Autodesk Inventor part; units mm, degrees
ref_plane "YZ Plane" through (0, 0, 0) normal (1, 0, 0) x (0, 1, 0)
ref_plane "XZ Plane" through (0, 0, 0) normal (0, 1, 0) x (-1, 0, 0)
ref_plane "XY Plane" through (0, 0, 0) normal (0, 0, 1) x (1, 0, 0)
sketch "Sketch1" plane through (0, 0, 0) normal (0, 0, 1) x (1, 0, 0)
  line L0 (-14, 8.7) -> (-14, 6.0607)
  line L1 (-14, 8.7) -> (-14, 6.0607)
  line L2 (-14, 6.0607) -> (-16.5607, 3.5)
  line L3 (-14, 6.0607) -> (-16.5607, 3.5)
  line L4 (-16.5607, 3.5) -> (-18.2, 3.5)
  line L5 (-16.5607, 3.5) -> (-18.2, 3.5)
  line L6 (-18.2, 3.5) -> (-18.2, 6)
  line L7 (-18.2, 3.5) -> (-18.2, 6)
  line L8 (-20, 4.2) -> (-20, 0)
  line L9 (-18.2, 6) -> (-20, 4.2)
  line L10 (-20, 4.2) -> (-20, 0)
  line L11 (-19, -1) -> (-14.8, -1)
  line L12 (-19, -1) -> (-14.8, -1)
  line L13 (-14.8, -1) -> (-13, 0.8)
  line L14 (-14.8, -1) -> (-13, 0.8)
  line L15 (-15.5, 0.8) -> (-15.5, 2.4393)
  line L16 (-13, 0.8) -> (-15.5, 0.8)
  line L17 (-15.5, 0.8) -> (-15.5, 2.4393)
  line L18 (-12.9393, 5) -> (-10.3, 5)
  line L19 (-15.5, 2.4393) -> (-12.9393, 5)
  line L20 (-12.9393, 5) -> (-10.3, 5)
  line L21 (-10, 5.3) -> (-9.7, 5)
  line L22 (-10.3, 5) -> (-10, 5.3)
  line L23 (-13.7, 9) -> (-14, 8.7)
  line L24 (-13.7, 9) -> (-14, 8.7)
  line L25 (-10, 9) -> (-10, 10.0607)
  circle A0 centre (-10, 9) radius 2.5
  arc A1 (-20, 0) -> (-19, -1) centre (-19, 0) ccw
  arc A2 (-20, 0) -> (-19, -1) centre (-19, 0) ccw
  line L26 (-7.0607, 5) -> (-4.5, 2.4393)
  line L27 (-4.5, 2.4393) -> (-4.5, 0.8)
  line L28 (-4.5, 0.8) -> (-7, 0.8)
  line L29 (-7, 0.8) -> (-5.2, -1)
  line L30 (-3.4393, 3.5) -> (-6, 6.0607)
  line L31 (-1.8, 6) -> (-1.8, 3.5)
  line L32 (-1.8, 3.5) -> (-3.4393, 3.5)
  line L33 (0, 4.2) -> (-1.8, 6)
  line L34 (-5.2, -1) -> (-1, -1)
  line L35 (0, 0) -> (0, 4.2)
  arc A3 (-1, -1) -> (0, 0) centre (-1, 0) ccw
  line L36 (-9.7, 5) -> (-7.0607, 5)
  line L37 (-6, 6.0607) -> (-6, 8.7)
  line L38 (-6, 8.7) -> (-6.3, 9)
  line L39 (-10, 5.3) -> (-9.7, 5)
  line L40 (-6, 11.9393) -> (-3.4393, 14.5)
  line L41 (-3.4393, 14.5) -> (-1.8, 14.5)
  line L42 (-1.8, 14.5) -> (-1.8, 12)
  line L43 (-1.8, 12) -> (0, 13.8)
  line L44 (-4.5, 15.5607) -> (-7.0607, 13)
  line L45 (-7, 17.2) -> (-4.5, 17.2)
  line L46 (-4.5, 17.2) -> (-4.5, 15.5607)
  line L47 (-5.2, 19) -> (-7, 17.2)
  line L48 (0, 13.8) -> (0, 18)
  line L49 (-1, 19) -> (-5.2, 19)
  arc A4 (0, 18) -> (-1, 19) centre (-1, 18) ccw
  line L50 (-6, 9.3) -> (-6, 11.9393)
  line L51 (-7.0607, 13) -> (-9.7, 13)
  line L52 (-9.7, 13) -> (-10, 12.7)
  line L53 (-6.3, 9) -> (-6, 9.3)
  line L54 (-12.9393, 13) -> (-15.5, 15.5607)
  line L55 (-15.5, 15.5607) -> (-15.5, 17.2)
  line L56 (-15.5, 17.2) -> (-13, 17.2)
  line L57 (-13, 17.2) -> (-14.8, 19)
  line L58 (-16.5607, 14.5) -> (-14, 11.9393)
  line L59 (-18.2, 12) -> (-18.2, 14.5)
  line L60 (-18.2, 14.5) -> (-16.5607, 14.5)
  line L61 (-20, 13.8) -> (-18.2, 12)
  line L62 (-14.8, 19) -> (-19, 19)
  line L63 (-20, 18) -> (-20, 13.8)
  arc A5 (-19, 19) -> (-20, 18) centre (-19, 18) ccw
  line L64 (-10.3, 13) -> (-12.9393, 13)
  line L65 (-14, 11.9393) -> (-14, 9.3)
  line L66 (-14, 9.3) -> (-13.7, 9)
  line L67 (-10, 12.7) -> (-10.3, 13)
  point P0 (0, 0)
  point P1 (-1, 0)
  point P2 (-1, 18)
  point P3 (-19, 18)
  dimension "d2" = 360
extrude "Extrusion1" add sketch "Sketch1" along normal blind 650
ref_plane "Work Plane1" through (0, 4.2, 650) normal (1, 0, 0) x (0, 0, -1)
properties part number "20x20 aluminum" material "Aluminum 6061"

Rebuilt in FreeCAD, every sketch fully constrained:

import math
import FreeCAD as App
import Part
import Sketcher
Q = App.Units.Quantity

doc = App.newDocument("Part")
params = doc.addObject("Spreadsheet::Sheet", "Params")
for row, (alias, value) in enumerate([
    ("sketch1_diameter", "5 mm"),
    ("sketch1_radius", "1 mm"),
    ("sketch1_width", "4.2 mm"),
    ("sketch1_width2", "2.5 mm"),
    ("pad1_length", "650 mm"),
], start=1):
    params.set(f"A{row}", alias)
    params.set(f"B{row}", "=" + value)
    params.setAlias(f"B{row}", alias)

body = doc.addObject("PartDesign::Body", "Body")

# Sketch on XY plane
sketch1 = body.newObject("Sketcher::SketchObject", "Sketch")
sketch1.AttachmentSupport = (doc.getObject("XY_Plane"), [""])
sketch1.MapMode = "FlatFace"
sketch1.addGeometry(Part.LineSegment(App.Vector(-13.7, 9, 0), App.Vector(-14, 8.7, 0)), False)
sketch1.addGeometry(Part.LineSegment(App.Vector(-14, 8.7, 0), App.Vector(-14, 6.06, 0)), False)
sketch1.addGeometry(Part.LineSegment(App.Vector(-14, 6.06, 0), App.Vector(-16.56, 3.5, 0)), False)
sketch1.addGeometry(Part.LineSegment(App.Vector(-16.56, 3.5, 0), App.Vector(-18.2, 3.5, 0)), False)
sketch1.addGeometry(Part.LineSegment(App.Vector(-18.2, 3.5, 0), App.Vector(-18.2, 6, 0)), False)
sketch1.addGeometry(Part.LineSegment(App.Vector(-18.2, 6, 0), App.Vector(-20, 4.2, 0)), False)
sketch1.addGeometry(Part.LineSegment(App.Vector(-20, 4.2, 0), App.Vector(-20, 0, 0)), False)
sketch1.addGeometry(Part.ArcOfCircle(Part.Circle(App.Vector(-19, 0, 0), App.Vector(0, 0, 1), 1), math.radians(180), math.radians(270)), False)
sketch1.addGeometry(Part.LineSegment(App.Vector(-19, -1, 0), App.Vector(-14.8, -1, 0)), False)
sketch1.addGeometry(Part.LineSegment(App.Vector(-14.8, -1, 0), App.Vector(-13, 0.8, 0)), False)
sketch1.addGeometry(Part.LineSegment(App.Vector(-13, 0.8, 0), App.Vector(-15.5, 0.8, 0)), False)
sketch1.addGeometry(Part.LineSegment(App.Vector(-15.5, 0.8, 0), App.Vector(-15.5, 2.44, 0)), False)
sketch1.addGeometry(Part.LineSegment(App.Vector(-15.5, 2.44, 0), App.Vector(-12.94, 5, 0)), False)
sketch1.addGeometry(Part.LineSegment(App.Vector(-12.94, 5, 0), App.Vector(-10.3, 5, 0)), False)
sketch1.addGeometry(Part.LineSegment(App.Vector(-10.3, 5, 0), App.Vector(-10, 5.3, 0)), False)
sketch1.addGeometry(Part.LineSegment(App.Vector(-10, 5.3, 0), App.Vector(-9.7, 5, 0)), False)
sketch1.addGeometry(Part.LineSegment(App.Vector(-9.7, 5, 0), App.Vector(-7.06, 5, 0)), False)
sketch1.addGeometry(Part.LineSegment(App.Vector(-7.06, 5, 0), App.Vector(-4.5, 2.44, 0)), False)
sketch1.addGeometry(Part.LineSegment(App.Vector(-4.5, 2.44, 0), App.Vector(-4.5, 0.8, 0)), False)
sketch1.addGeometry(Part.LineSegment(App.Vector(-4.5, 0.8, 0), App.Vector(-7, 0.8, 0)), False)
sketch1.addGeometry(Part.LineSegment(App.Vector(-7, 0.8, 0), App.Vector(-5.2, -1, 0)), False)
sketch1.addGeometry(Part.LineSegment(App.Vector(-5.2, -1, 0), App.Vector(-1, -1, 0)), False)
sketch1.addGeometry(Part.ArcOfCircle(Part.Circle(App.Vector(-1, 0, 0), App.Vector(0, 0, 1), 1), math.radians(-90), math.radians(0)), False)
sketch1.addGeometry(Part.LineSegment(App.Vector(0, 0, 0), App.Vector(0, 4.2, 0)), False)
sketch1.addGeometry(Part.LineSegment(App.Vector(0, 4.2, 0), App.Vector(-1.8, 6, 0)), False)
sketch1.addGeometry(Part.LineSegment(App.Vector(-1.8, 6, 0), App.Vector(-1.8, 3.5, 0)), False)
sketch1.addGeometry(Part.LineSegment(App.Vector(-1.8, 3.5, 0), App.Vector(-3.44, 3.5, 0)), False)
sketch1.addGeometry(Part.LineSegment(App.Vector(-3.44, 3.5, 0), App.Vector(-6, 6.06, 0)), False)
sketch1.addGeometry(Part.LineSegment(App.Vector(-6, 6.06, 0), App.Vector(-6, 8.7, 0)), False)
sketch1.addGeometry(Part.LineSegment(App.Vector(-6, 8.7, 0), App.Vector(-6.3, 9, 0)), False)
sketch1.addGeometry(Part.LineSegment(App.Vector(-6.3, 9, 0), App.Vector(-6, 9.3, 0)), False)
sketch1.addGeometry(Part.LineSegment(App.Vector(-6, 9.3, 0), App.Vector(-6, 11.94, 0)), False)
sketch1.addGeometry(Part.LineSegment(App.Vector(-6, 11.94, 0), App.Vector(-3.44, 14.5, 0)), False)
sketch1.addGeometry(Part.LineSegment(App.Vector(-3.44, 14.5, 0), App.Vector(-1.8, 14.5, 0)), False)
sketch1.addGeometry(Part.LineSegment(App.Vector(-1.8, 14.5, 0), App.Vector(-1.8, 12, 0)), False)
sketch1.addGeometry(Part.LineSegment(App.Vector(-1.8, 12, 0), App.Vector(0, 13.8, 0)), False)
sketch1.addGeometry(Part.LineSegment(App.Vector(0, 13.8, 0), App.Vector(0, 18, 0)), False)
sketch1.addGeometry(Part.ArcOfCircle(Part.Circle(App.Vector(-1, 18, 0), App.Vector(0, 0, 1), 1), math.radians(0), math.radians(90)), False)
sketch1.addGeometry(Part.LineSegment(App.Vector(-1, 19, 0), App.Vector(-5.2, 19, 0)), False)
sketch1.addGeometry(Part.LineSegment(App.Vector(-5.2, 19, 0), App.Vector(-7, 17.2, 0)), False)
sketch1.addGeometry(Part.LineSegment(App.Vector(-7, 17.2, 0), App.Vector(-4.5, 17.2, 0)), False)
sketch1.addGeometry(Part.LineSegment(App.Vector(-4.5, 17.2, 0), App.Vector(-4.5, 15.56, 0)), False)
sketch1.addGeometry(Part.LineSegment(App.Vector(-4.5, 15.56, 0), App.Vector(-7.06, 13, 0)), False)
sketch1.addGeometry(Part.LineSegment(App.Vector(-7.06, 13, 0), App.Vector(-9.7, 13, 0)), False)
sketch1.addGeometry(Part.LineSegment(App.Vector(-9.7, 13, 0), App.Vector(-10, 12.7, 0)), False)
sketch1.addGeometry(Part.LineSegment(App.Vector(-10, 12.7, 0), App.Vector(-10.3, 13, 0)), False)
sketch1.addGeometry(Part.LineSegment(App.Vector(-10.3, 13, 0), App.Vector(-12.94, 13, 0)), False)
sketch1.addGeometry(Part.LineSegment(App.Vector(-12.94, 13, 0), App.Vector(-15.5, 15.56, 0)), False)
sketch1.addGeometry(Part.LineSegment(App.Vector(-15.5, 15.56, 0), App.Vector(-15.5, 17.2, 0)), False)
sketch1.addGeometry(Part.LineSegment(App.Vector(-15.5, 17.2, 0), App.Vector(-13, 17.2, 0)), False)
sketch1.addGeometry(Part.LineSegment(App.Vector(-13, 17.2, 0), App.Vector(-14.8, 19, 0)), False)
sketch1.addGeometry(Part.LineSegment(App.Vector(-14.8, 19, 0), App.Vector(-19, 19, 0)), False)
sketch1.addGeometry(Part.ArcOfCircle(Part.Circle(App.Vector(-19, 18, 0), App.Vector(0, 0, 1), 1), math.radians(90), math.radians(180)), False)
sketch1.addGeometry(Part.LineSegment(App.Vector(-20, 18, 0), App.Vector(-20, 13.8, 0)), False)
sketch1.addGeometry(Part.LineSegment(App.Vector(-20, 13.8, 0), App.Vector(-18.2, 12, 0)), False)
sketch1.addGeometry(Part.LineSegment(App.Vector(-18.2, 12, 0), App.Vector(-18.2, 14.5, 0)), False)
sketch1.addGeometry(Part.LineSegment(App.Vector(-18.2, 14.5, 0), App.Vector(-16.56, 14.5, 0)), False)
sketch1.addGeometry(Part.LineSegment(App.Vector(-16.56, 14.5, 0), App.Vector(-14, 11.94, 0)), False)
sketch1.addGeometry(Part.LineSegment(App.Vector(-14, 11.94, 0), App.Vector(-14, 9.3, 0)), False)
sketch1.addGeometry(Part.LineSegment(App.Vector(-14, 9.3, 0), App.Vector(-13.7, 9, 0)), False)
sketch1.addGeometry(Part.Circle(App.Vector(-10, 9, 0), App.Vector(0, 0, 1), 2.5), False)
sketch1.addConstraint(Sketcher.Constraint("Coincident", 0, 2, 1, 1))
sketch1.addConstraint(Sketcher.Constraint("Coincident", 1, 2, 2, 1))
sketch1.addConstraint(Sketcher.Constraint("Coincident", 2, 2, 3, 1))
sketch1.addConstraint(Sketcher.Constraint("Coincident", 3, 2, 4, 1))
sketch1.addConstraint(Sketcher.Constraint("Coincident", 4, 2, 5, 1))
sketch1.addConstraint(Sketcher.Constraint("Coincident", 5, 2, 6, 1))
sketch1.addConstraint(Sketcher.Constraint("Tangent", 6, 2, 7, 1))
sketch1.addConstraint(Sketcher.Constraint("Tangent", 7, 2, 8, 1))
sketch1.addConstraint(Sketcher.Constraint("Coincident", 8, 2, 9, 1))
sketch1.addConstraint(Sketcher.Constraint("Coincident", 9, 2, 10, 1))
sketch1.addConstraint(Sketcher.Constraint("Coincident", 10, 2, 11, 1))
sketch1.addConstraint(Sketcher.Constraint("Coincident", 11, 2, 12, 1))
sketch1.addConstraint(Sketcher.Constraint("Coincident", 12, 2, 13, 1))
sketch1.addConstraint(Sketcher.Constraint("Coincident", 13, 2, 14, 1))
sketch1.addConstraint(Sketcher.Constraint("Coincident", 14, 2, 15, 1))
sketch1.addConstraint(Sketcher.Constraint("Coincident", 15, 2, 16, 1))
sketch1.addConstraint(Sketcher.Constraint("Coincident", 16, 2, 17, 1))
sketch1.addConstraint(Sketcher.Constraint("Coincident", 17, 2, 18, 1))
sketch1.addConstraint(Sketcher.Constraint("Coincident", 18, 2, 19, 1))
sketch1.addConstraint(Sketcher.Constraint("Coincident", 19, 2, 20, 1))
sketch1.addConstraint(Sketcher.Constraint("Coincident", 20, 2, 21, 1))
sketch1.addConstraint(Sketcher.Constraint("Tangent", 21, 2, 22, 1))
sketch1.addConstraint(Sketcher.Constraint("Tangent", 22, 2, 23, 1))
sketch1.addConstraint(Sketcher.Constraint("Coincident", 23, 2, 24, 1))
sketch1.addConstraint(Sketcher.Constraint("Coincident", 24, 2, 25, 1))
sketch1.addConstraint(Sketcher.Constraint("Coincident", 25, 2, 26, 1))
sketch1.addConstraint(Sketcher.Constraint("Coincident", 26, 2, 27, 1))
sketch1.addConstraint(Sketcher.Constraint("Coincident", 27, 2, 28, 1))
sketch1.addConstraint(Sketcher.Constraint("Coincident", 28, 2, 29, 1))
sketch1.addConstraint(Sketcher.Constraint("Coincident", 29, 2, 30, 1))
sketch1.addConstraint(Sketcher.Constraint("Coincident", 30, 2, 31, 1))
sketch1.addConstraint(Sketcher.Constraint("Coincident", 31, 2, 32, 1))
sketch1.addConstraint(Sketcher.Constraint("Coincident", 32, 2, 33, 1))
sketch1.addConstraint(Sketcher.Constraint("Coincident", 33, 2, 34, 1))
sketch1.addConstraint(Sketcher.Constraint("Coincident", 34, 2, 35, 1))
sketch1.addConstraint(Sketcher.Constraint("Coincident", 35, 2, 36, 1))
sketch1.addConstraint(Sketcher.Constraint("Tangent", 36, 2, 37, 1))
sketch1.addConstraint(Sketcher.Constraint("Tangent", 37, 2, 38, 1))
sketch1.addConstraint(Sketcher.Constraint("Coincident", 38, 2, 39, 1))
sketch1.addConstraint(Sketcher.Constraint("Coincident", 39, 2, 40, 1))
sketch1.addConstraint(Sketcher.Constraint("Coincident", 40, 2, 41, 1))
sketch1.addConstraint(Sketcher.Constraint("Coincident", 41, 2, 42, 1))
sketch1.addConstraint(Sketcher.Constraint("Coincident", 42, 2, 43, 1))
sketch1.addConstraint(Sketcher.Constraint("Coincident", 43, 2, 44, 1))
sketch1.addConstraint(Sketcher.Constraint("Coincident", 44, 2, 45, 1))
sketch1.addConstraint(Sketcher.Constraint("Coincident", 45, 2, 46, 1))
sketch1.addConstraint(Sketcher.Constraint("Coincident", 46, 2, 47, 1))
sketch1.addConstraint(Sketcher.Constraint("Coincident", 47, 2, 48, 1))
sketch1.addConstraint(Sketcher.Constraint("Coincident", 48, 2, 49, 1))
sketch1.addConstraint(Sketcher.Constraint("Coincident", 49, 2, 50, 1))
sketch1.addConstraint(Sketcher.Constraint("Coincident", 50, 2, 51, 1))
sketch1.addConstraint(Sketcher.Constraint("Tangent", 51, 2, 52, 1))
sketch1.addConstraint(Sketcher.Constraint("Tangent", 52, 2, 53, 1))
sketch1.addConstraint(Sketcher.Constraint("Coincident", 53, 2, 54, 1))
sketch1.addConstraint(Sketcher.Constraint("Coincident", 54, 2, 55, 1))
sketch1.addConstraint(Sketcher.Constraint("Coincident", 55, 2, 56, 1))
sketch1.addConstraint(Sketcher.Constraint("Coincident", 56, 2, 57, 1))
sketch1.addConstraint(Sketcher.Constraint("Coincident", 57, 2, 58, 1))
sketch1.addConstraint(Sketcher.Constraint("Coincident", 58, 2, 59, 1))
sketch1.addConstraint(Sketcher.Constraint("Coincident", 59, 2, 0, 1))
sketch1.addConstraint(Sketcher.Constraint("Vertical", 1))
sketch1.addConstraint(Sketcher.Constraint("Horizontal", 3))
sketch1.addConstraint(Sketcher.Constraint("Vertical", 4))
sketch1.addConstraint(Sketcher.Constraint("Vertical", 6))
sketch1.addConstraint(Sketcher.Constraint("Horizontal", 8))
sketch1.addConstraint(Sketcher.Constraint("Horizontal", 10))
sketch1.addConstraint(Sketcher.Constraint("Vertical", 11))
sketch1.addConstraint(Sketcher.Constraint("Horizontal", 13))
sketch1.addConstraint(Sketcher.Constraint("Horizontal", 16))
sketch1.addConstraint(Sketcher.Constraint("Vertical", 18))
sketch1.addConstraint(Sketcher.Constraint("Horizontal", 19))
sketch1.addConstraint(Sketcher.Constraint("Horizontal", 21))
sketch1.addConstraint(Sketcher.Constraint("Vertical", 23))
sketch1.addConstraint(Sketcher.Constraint("Vertical", 25))
sketch1.addConstraint(Sketcher.Constraint("Horizontal", 26))
sketch1.addConstraint(Sketcher.Constraint("Vertical", 28))
sketch1.addConstraint(Sketcher.Constraint("Vertical", 31))
sketch1.addConstraint(Sketcher.Constraint("Horizontal", 33))
sketch1.addConstraint(Sketcher.Constraint("Vertical", 34))
sketch1.addConstraint(Sketcher.Constraint("Vertical", 36))
sketch1.addConstraint(Sketcher.Constraint("Horizontal", 38))
sketch1.addConstraint(Sketcher.Constraint("Horizontal", 40))
sketch1.addConstraint(Sketcher.Constraint("Vertical", 41))
sketch1.addConstraint(Sketcher.Constraint("Horizontal", 43))
sketch1.addConstraint(Sketcher.Constraint("Horizontal", 46))
sketch1.addConstraint(Sketcher.Constraint("Vertical", 48))
sketch1.addConstraint(Sketcher.Constraint("Horizontal", 49))
sketch1.addConstraint(Sketcher.Constraint("Horizontal", 51))
sketch1.addConstraint(Sketcher.Constraint("Vertical", 53))
sketch1.addConstraint(Sketcher.Constraint("Vertical", 55))
sketch1.addConstraint(Sketcher.Constraint("Horizontal", 56))
sketch1.addConstraint(Sketcher.Constraint("Vertical", 58))
sketch1.addConstraint(Sketcher.Constraint("Coincident", 22, 2, -1, 1))
sketch1.addConstraint(Sketcher.Constraint("Equal", 7, 22))
sketch1.addConstraint(Sketcher.Constraint("Equal", 22, 37))
sketch1.addConstraint(Sketcher.Constraint("Equal", 37, 52))
sketch1.addConstraint(Sketcher.Constraint("PointOnObject", 7, 3, -1))
sketch1.addConstraint(Sketcher.Constraint("PointOnObject", 35, 2, -2))
sketch1.addConstraint(Sketcher.Constraint("Parallel", 0, 2))
sketch1.addConstraint(Sketcher.Constraint("Parallel", 2, 5))
sketch1.addConstraint(Sketcher.Constraint("Parallel", 5, 9))
sketch1.addConstraint(Sketcher.Constraint("Parallel", 9, 12))
sketch1.addConstraint(Sketcher.Constraint("Parallel", 12, 14))
sketch1.addConstraint(Sketcher.Constraint("Perpendicular", 14, 15))
sketch1.addConstraint(Sketcher.Constraint("Parallel", 15, 17))
sketch1.addConstraint(Sketcher.Constraint("Parallel", 17, 20))
sketch1.addConstraint(Sketcher.Constraint("Parallel", 20, 24))
sketch1.addConstraint(Sketcher.Constraint("Parallel", 24, 27))
sketch1.addConstraint(Sketcher.Constraint("Parallel", 27, 29))
sketch1.addConstraint(Sketcher.Constraint("Perpendicular", 29, 30))
sketch1.addConstraint(Sketcher.Constraint("Parallel", 30, 32))
sketch1.addConstraint(Sketcher.Constraint("Parallel", 32, 35))
sketch1.addConstraint(Sketcher.Constraint("Parallel", 35, 39))
sketch1.addConstraint(Sketcher.Constraint("Parallel", 39, 42))
sketch1.addConstraint(Sketcher.Constraint("Parallel", 42, 44))
sketch1.addConstraint(Sketcher.Constraint("Perpendicular", 44, 45))
sketch1.addConstraint(Sketcher.Constraint("Parallel", 45, 47))
sketch1.addConstraint(Sketcher.Constraint("Parallel", 47, 50))
sketch1.addConstraint(Sketcher.Constraint("Parallel", 50, 54))
sketch1.addConstraint(Sketcher.Constraint("Parallel", 54, 57))
sketch1.addConstraint(Sketcher.Constraint("Parallel", 57, 59))
sketch1.addConstraint(Sketcher.Constraint("Horizontal", 37, 3, 52, 3))
sketch1.addConstraint(Sketcher.Constraint("Horizontal", 13, 2, 15, 2))
sketch1.addConstraint(Sketcher.Constraint("Horizontal", 11, 2, 17, 2))
sketch1.addConstraint(Sketcher.Constraint("Horizontal", 10, 2, 18, 2))
sketch1.addConstraint(Sketcher.Constraint("Horizontal", 5, 2, 23, 2))
sketch1.addConstraint(Sketcher.Constraint("Horizontal", 4, 2, 24, 2))
sketch1.addConstraint(Sketcher.Constraint("Horizontal", 3, 2, 25, 2))
sketch1.addConstraint(Sketcher.Constraint("Horizontal", 1, 2, 27, 2))
sketch1.addConstraint(Sketcher.Constraint("Horizontal", 0, 2, 28, 2))
sketch1.addConstraint(Sketcher.Constraint("Horizontal", 60, 3, 29, 2))
sketch1.addConstraint(Sketcher.Constraint("Horizontal", 43, 2, 45, 2))
sketch1.addConstraint(Sketcher.Constraint("Horizontal", 41, 2, 47, 2))
sketch1.addConstraint(Sketcher.Constraint("Horizontal", 40, 2, 48, 2))
sketch1.addConstraint(Sketcher.Constraint("Horizontal", 35, 2, 53, 2))
sketch1.addConstraint(Sketcher.Constraint("Horizontal", 34, 2, 54, 2))
sketch1.addConstraint(Sketcher.Constraint("Horizontal", 33, 2, 55, 2))
sketch1.addConstraint(Sketcher.Constraint("Horizontal", 31, 2, 57, 2))
sketch1.addConstraint(Sketcher.Constraint("Horizontal", 30, 2, 58, 2))
sketch1.addConstraint(Sketcher.Constraint("Horizontal", 29, 2, 59, 2))
sketch1.addConstraint(Sketcher.Constraint("Vertical", 7, 3, 52, 3))
sketch1.addConstraint(Sketcher.Constraint("Vertical", 60, 3, 14, 2))
sketch1.addConstraint(Sketcher.Constraint("Vertical", 28, 2, 30, 2))
sketch1.addConstraint(Sketcher.Constraint("Vertical", 26, 2, 32, 2))
sketch1.addConstraint(Sketcher.Constraint("Vertical", 25, 2, 33, 2))
sketch1.addConstraint(Sketcher.Constraint("Vertical", 20, 2, 38, 2))
sketch1.addConstraint(Sketcher.Constraint("Vertical", 19, 2, 39, 2))
sketch1.addConstraint(Sketcher.Constraint("Vertical", 18, 2, 40, 2))
sketch1.addConstraint(Sketcher.Constraint("Vertical", 16, 2, 42, 2))
sketch1.addConstraint(Sketcher.Constraint("Vertical", 15, 2, 43, 2))
sketch1.addConstraint(Sketcher.Constraint("Vertical", 14, 2, 44, 2))
sketch1.addConstraint(Sketcher.Constraint("Vertical", 13, 2, 45, 2))
sketch1.addConstraint(Sketcher.Constraint("Vertical", 12, 2, 46, 2))
sketch1.addConstraint(Sketcher.Constraint("Vertical", 9, 2, 49, 2))
sketch1.addConstraint(Sketcher.Constraint("Equal", 13, 16))
sketch1.addConstraint(Sketcher.Constraint("Equal", 10, 19))
sketch1.addConstraint(Sketcher.Constraint("Equal", 8, 21))
sketch1.addConstraint(Sketcher.Constraint("Equal", 3, 26))
sketch1.addConstraint(Sketcher.Constraint("Equal", 46, 1))
sketch1.addConstraint(Sketcher.Constraint("Equal", 49, 4))
sketch1.addConstraint(Sketcher.Constraint("Equal", 51, 6))
sketch1.addConstraint(Sketcher.Constraint("Equal", 56, 11))
sketch1.addConstraint(Sketcher.Constraint("Equal", 28, 31))
sketch1.addConstraint(Sketcher.Constraint("Equal", 25, 34))
sketch1.addConstraint(Sketcher.Constraint("Equal", 23, 36))
sketch1.addConstraint(Sketcher.Constraint("Equal", 18, 41))
sketch1.addConstraint(Sketcher.Constraint("Equal", 5, 9))
sketch1.addConstraint(Sketcher.Constraint("Equal", 2, 12))
sketch1.addConstraint(Sketcher.Constraint("Equal", 0, 14))
sketch1.addConstraint(Sketcher.Constraint("Diameter", 60, Q("5 mm")))
sketch1.addConstraint(Sketcher.Constraint("Radius", 7, Q("1 mm")))
sketch1.addConstraint(Sketcher.Constraint("DistanceX", 8, 1, 8, 2, Q("4.2 mm")))
sketch1.addConstraint(Sketcher.Constraint("DistanceX", 10, 2, 10, 1, Q("2.5 mm")))
sketch1.addConstraint(Sketcher.Constraint("DistanceX", 7, 3, -1, 1, Q("19 mm")))
sketch1.addConstraint(Sketcher.Constraint("DistanceX", 0, 2, -1, 1, Q("14 mm")))
sketch1.addConstraint(Sketcher.Constraint("DistanceY", -1, 1, 4, 2, Q("6 mm")))
sketch1.addConstraint(Sketcher.Constraint("DistanceY", -1, 1, 0, 2, Q("8.7 mm")))
sketch1.addConstraint(Sketcher.Constraint("DistanceX", 3, 2, 3, 1, Q("1.6393 mm")))
sketch1.setExpression("Constraints[169]", "Params.sketch1_diameter")
sketch1.setExpression("Constraints[170]", "Params.sketch1_radius")
sketch1.setExpression("Constraints[171]", "Params.sketch1_width")
sketch1.setExpression("Constraints[172]", "Params.sketch1_width2")
pad1 = body.newObject("PartDesign::Pad", "Pad")
pad1.Profile = sketch1
pad1.setExpression("Length", "Params.pad1_length")

doc.recompute()
